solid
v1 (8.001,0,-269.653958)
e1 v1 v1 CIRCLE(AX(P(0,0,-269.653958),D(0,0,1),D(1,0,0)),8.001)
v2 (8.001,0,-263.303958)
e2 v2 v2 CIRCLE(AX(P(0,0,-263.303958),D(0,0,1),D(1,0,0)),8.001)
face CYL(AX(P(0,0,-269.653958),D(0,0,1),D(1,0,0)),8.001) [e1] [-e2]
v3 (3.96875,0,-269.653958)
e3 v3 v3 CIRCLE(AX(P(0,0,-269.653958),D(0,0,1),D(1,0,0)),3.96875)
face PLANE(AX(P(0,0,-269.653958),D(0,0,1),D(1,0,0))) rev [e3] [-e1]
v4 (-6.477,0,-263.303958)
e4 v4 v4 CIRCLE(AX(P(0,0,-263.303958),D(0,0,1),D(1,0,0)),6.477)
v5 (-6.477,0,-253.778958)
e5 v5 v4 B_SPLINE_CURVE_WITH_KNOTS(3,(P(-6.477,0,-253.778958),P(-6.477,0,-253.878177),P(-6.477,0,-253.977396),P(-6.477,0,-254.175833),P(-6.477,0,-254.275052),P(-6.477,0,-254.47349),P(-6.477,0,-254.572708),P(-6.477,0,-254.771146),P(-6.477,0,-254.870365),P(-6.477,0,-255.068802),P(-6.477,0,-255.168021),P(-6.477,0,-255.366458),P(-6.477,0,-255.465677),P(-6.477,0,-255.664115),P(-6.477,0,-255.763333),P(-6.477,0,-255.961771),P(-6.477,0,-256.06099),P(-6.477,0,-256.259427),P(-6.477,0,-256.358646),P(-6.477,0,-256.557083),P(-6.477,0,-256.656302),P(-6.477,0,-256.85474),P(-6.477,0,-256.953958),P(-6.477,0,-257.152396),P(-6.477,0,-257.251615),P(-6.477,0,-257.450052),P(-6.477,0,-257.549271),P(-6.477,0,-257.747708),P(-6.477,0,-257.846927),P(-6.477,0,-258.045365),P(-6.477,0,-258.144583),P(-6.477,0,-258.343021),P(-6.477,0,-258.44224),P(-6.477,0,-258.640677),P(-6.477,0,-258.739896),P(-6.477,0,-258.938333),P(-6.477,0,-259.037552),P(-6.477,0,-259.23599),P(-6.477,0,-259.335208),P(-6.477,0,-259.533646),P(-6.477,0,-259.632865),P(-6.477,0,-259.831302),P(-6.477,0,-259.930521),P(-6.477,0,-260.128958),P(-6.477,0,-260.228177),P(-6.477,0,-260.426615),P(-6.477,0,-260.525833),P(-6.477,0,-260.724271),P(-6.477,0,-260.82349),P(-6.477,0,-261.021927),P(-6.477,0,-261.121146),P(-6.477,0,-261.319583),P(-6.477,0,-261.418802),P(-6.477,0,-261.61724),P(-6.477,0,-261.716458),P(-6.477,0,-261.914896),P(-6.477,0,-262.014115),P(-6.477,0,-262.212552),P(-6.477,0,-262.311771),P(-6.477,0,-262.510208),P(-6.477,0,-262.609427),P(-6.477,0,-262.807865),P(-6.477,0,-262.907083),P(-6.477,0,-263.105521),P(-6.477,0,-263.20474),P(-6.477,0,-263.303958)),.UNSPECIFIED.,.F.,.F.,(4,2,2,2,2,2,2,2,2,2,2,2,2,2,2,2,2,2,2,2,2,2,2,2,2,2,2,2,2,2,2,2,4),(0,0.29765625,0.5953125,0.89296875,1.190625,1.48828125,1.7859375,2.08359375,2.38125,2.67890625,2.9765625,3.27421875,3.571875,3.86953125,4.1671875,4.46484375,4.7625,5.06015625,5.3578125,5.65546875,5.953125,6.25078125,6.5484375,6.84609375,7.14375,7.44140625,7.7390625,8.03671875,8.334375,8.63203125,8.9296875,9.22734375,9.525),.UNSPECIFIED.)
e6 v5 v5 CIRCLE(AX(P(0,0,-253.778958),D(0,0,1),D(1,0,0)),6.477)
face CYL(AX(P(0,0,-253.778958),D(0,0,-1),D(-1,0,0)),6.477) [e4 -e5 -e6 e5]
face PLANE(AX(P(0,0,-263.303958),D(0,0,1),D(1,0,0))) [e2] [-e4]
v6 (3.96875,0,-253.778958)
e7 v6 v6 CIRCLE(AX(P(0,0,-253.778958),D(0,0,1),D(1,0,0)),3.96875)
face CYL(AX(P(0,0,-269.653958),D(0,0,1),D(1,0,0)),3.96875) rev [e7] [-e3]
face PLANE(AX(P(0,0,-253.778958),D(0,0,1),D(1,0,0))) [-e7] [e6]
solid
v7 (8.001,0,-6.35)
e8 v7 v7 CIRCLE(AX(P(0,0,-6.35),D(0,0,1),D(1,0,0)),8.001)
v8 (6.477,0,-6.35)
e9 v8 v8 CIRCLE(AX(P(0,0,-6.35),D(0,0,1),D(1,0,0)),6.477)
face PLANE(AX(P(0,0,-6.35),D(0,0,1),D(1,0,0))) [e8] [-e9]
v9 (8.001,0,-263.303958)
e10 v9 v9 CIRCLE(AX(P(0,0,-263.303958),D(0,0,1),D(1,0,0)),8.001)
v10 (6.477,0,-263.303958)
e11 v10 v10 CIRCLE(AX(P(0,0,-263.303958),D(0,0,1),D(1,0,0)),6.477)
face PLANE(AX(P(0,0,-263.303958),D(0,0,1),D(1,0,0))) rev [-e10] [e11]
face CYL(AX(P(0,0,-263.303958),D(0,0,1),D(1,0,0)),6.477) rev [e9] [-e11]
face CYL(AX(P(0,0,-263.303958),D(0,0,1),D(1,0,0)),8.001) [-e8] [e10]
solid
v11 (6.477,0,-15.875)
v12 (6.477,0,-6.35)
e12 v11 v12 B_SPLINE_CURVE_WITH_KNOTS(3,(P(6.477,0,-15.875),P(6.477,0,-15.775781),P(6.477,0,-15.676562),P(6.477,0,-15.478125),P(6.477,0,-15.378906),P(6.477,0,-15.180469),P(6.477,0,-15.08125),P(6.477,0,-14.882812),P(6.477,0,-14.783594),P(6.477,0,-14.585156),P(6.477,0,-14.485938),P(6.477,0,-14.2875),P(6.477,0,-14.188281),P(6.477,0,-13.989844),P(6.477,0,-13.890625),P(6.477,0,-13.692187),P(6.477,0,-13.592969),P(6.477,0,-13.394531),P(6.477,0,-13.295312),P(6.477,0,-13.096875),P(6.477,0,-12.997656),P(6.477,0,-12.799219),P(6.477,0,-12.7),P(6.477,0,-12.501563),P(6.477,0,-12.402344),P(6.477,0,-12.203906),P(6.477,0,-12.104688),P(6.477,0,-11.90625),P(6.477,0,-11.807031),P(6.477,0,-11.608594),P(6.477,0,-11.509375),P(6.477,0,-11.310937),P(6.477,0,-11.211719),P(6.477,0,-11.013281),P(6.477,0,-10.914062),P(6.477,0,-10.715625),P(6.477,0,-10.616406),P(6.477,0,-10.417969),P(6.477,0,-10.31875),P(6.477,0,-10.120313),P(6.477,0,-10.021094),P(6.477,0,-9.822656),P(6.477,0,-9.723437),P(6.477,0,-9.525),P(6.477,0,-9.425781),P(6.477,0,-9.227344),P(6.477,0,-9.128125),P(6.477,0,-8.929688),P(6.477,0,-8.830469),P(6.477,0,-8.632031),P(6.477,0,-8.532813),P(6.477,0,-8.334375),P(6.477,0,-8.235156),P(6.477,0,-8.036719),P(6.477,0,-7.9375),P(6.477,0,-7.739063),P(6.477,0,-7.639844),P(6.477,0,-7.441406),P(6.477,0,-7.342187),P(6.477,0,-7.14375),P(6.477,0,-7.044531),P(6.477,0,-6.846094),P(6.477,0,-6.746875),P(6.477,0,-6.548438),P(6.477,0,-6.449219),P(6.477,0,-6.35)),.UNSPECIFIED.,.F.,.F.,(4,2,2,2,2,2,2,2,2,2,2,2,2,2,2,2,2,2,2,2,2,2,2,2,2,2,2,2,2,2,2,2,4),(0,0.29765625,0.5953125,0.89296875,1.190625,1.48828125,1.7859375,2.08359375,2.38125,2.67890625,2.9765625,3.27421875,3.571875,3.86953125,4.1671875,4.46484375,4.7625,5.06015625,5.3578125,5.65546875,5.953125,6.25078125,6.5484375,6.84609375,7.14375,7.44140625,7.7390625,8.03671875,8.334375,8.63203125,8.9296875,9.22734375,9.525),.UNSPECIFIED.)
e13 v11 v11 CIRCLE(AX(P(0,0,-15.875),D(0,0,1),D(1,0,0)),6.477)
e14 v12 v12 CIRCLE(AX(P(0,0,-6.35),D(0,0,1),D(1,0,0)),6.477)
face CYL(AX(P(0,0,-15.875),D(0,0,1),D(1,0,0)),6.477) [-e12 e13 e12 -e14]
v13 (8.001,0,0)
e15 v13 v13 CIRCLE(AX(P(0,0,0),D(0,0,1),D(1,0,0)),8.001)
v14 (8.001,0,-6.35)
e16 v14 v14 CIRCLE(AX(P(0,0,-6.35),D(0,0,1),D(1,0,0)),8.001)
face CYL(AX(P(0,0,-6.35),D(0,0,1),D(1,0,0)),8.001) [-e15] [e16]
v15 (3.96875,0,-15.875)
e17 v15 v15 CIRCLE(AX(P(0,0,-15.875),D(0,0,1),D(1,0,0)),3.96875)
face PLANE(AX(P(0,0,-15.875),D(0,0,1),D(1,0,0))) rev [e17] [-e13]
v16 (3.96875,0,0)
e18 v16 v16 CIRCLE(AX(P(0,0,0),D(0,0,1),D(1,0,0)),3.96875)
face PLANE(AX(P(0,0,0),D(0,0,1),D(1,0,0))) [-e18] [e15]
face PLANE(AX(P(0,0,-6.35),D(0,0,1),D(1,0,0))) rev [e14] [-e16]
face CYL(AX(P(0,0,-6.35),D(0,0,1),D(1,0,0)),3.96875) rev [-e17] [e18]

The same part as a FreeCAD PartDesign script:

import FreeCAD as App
import Part
import Sketcher
from FreeCAD import Vector
Q = App.Units.Quantity

doc = App.newDocument("Part")
body = doc.addObject("PartDesign::Body", "Body")

sketch1 = body.newObject("Sketcher::SketchObject", "Sketch")
sketch1.AttachmentSupport = (doc.getObject("XY_Plane"), [""])
sketch1.MapMode = "FlatFace"
sketch1.addGeometry([
    Part.Circle(Vector(0, 0, 0), Vector(0, 0, 1), 8),
    Part.Circle(Vector(0, 0, 0), Vector(0, 0, 1), 4),
], False)
sketch1.addConstraint([
    Sketcher.Constraint("Coincident", 0, 3, -1, 1),
    Sketcher.Constraint("Coincident", 1, 3, -1, 1),
    Sketcher.Constraint("Diameter", 0, Q("0.63 in")),
    Sketcher.Constraint("Diameter", 1, Q("0.3125 in")),
])
pad1 = body.newObject("PartDesign::Pad", "Pad")
pad1.Profile = sketch1
pad1.Length = Q("0.25 in")
pad1.Reversed = True

sketch2 = body.newObject("Sketcher::SketchObject", "Sketch001")
sketch2.AttachmentSupport = (doc.getObject("XY_Plane"), [""])
sketch2.MapMode = "FlatFace"
sketch2.AttachmentOffset = App.Placement(Vector(0, 0, -0.25 * 25.4), App.Rotation())
sketch2.addGeometry([
    Part.Circle(Vector(0, 0, 0), Vector(0, 0, 1), 6.5),
    Part.Circle(Vector(0, 0, 0), Vector(0, 0, 1), 4),
], False)
sketch2.addConstraint([
    Sketcher.Constraint("Coincident", 0, 3, -1, 1),
    Sketcher.Constraint("Coincident", 1, 3, -1, 1),
    Sketcher.Constraint("Diameter", 0, Q("0.51 in")),
    Sketcher.Constraint("Diameter", 1, Q("0.3125 in")),
])
pad2 = body.newObject("PartDesign::Pad", "Pad001")
pad2.Profile = sketch2
pad2.Length = Q("0.375 in")
pad2.Reversed = True
body2 = doc.addObject("PartDesign::Body", "Body001")

sketch3 = body2.newObject("Sketcher::SketchObject", "Sketch002")
sketch3.AttachmentSupport = (doc.getObject("XY_Plane001"), [""])
sketch3.MapMode = "FlatFace"
sketch3.AttachmentOffset = App.Placement(Vector(0, 0, -0.25 * 25.4), App.Rotation())
sketch3.addGeometry([
    Part.Circle(Vector(0, 0, 0), Vector(0, 0, 1), 8),
    Part.Circle(Vector(0, 0, 0), Vector(0, 0, 1), 6),
], False)
sketch3.addConstraint([
    Sketcher.Constraint("Coincident", 0, 3, -1, 1),
    Sketcher.Constraint("Coincident", 1, 3, -1, 1),
    Sketcher.Constraint("Diameter", 0, Q("0.63 in")),
    Sketcher.Constraint("Diameter", 1, Q("0.51 in")),
])
pad3 = body2.newObject("PartDesign::Pad", "Pad002")
pad3.Profile = sketch3
pad3.Length = 256.953958
pad3.Reversed = True
body3 = doc.addObject("PartDesign::Body", "Body002")

sketch4 = body3.newObject("Sketcher::SketchObject", "Sketch003")
sketch4.AttachmentSupport = (doc.getObject("XY_Plane002"), [""])
sketch4.MapMode = "FlatFace"
sketch4.AttachmentOffset = App.Placement(Vector(0, 0, -263.303958), App.Rotation())
sketch4.addGeometry([
    Part.Circle(Vector(0, 0, 0), Vector(0, 0, 1), 6.5),
    Part.Circle(Vector(0, 0, 0), Vector(0, 0, 1), 4),
], False)
sketch4.addConstraint([
    Sketcher.Constraint("Coincident", 0, 3, -1, 1),
    Sketcher.Constraint("Coincident", 1, 3, -1, 1),
    Sketcher.Constraint("Diameter", 0, Q("0.51 in")),
    Sketcher.Constraint("Diameter", 1, Q("0.3125 in")),
])
pad4 = body3.newObject("PartDesign::Pad", "Pad003")
pad4.Profile = sketch4
pad4.Length = Q("0.375 in")
body4 = doc.addObject("PartDesign::Body", "Body003")

sketch5 = body4.newObject("Sketcher::SketchObject", "Sketch004")
sketch5.AttachmentSupport = (doc.getObject("XY_Plane003"), [""])
sketch5.MapMode = "FlatFace"
sketch5.AttachmentOffset = App.Placement(Vector(0, 0, -263.303958), App.Rotation())
sketch5.addGeometry([
    Part.Circle(Vector(0, 0, 0), Vector(0, 0, 1), 8),
    Part.Circle(Vector(0, 0, 0), Vector(0, 0, 1), 4),
], False)
sketch5.addConstraint([
    Sketcher.Constraint("Coincident", 0, 3, -1, 1),
    Sketcher.Constraint("Coincident", 1, 3, -1, 1),
    Sketcher.Constraint("Diameter", 0, Q("0.63 in")),
    Sketcher.Constraint("Diameter", 1, Q("0.3125 in")),
])
pad5 = body4.newObject("PartDesign::Pad", "Pad004")
pad5.Profile = sketch5
pad5.Length = Q("0.25 in")
pad5.Reversed = True
doc.recompute()

boolean = body4.newObject("PartDesign::Boolean", "Boolean")
boolean.Type = "Fuse"
boolean.addObjects([body3])

doc.recompute()
